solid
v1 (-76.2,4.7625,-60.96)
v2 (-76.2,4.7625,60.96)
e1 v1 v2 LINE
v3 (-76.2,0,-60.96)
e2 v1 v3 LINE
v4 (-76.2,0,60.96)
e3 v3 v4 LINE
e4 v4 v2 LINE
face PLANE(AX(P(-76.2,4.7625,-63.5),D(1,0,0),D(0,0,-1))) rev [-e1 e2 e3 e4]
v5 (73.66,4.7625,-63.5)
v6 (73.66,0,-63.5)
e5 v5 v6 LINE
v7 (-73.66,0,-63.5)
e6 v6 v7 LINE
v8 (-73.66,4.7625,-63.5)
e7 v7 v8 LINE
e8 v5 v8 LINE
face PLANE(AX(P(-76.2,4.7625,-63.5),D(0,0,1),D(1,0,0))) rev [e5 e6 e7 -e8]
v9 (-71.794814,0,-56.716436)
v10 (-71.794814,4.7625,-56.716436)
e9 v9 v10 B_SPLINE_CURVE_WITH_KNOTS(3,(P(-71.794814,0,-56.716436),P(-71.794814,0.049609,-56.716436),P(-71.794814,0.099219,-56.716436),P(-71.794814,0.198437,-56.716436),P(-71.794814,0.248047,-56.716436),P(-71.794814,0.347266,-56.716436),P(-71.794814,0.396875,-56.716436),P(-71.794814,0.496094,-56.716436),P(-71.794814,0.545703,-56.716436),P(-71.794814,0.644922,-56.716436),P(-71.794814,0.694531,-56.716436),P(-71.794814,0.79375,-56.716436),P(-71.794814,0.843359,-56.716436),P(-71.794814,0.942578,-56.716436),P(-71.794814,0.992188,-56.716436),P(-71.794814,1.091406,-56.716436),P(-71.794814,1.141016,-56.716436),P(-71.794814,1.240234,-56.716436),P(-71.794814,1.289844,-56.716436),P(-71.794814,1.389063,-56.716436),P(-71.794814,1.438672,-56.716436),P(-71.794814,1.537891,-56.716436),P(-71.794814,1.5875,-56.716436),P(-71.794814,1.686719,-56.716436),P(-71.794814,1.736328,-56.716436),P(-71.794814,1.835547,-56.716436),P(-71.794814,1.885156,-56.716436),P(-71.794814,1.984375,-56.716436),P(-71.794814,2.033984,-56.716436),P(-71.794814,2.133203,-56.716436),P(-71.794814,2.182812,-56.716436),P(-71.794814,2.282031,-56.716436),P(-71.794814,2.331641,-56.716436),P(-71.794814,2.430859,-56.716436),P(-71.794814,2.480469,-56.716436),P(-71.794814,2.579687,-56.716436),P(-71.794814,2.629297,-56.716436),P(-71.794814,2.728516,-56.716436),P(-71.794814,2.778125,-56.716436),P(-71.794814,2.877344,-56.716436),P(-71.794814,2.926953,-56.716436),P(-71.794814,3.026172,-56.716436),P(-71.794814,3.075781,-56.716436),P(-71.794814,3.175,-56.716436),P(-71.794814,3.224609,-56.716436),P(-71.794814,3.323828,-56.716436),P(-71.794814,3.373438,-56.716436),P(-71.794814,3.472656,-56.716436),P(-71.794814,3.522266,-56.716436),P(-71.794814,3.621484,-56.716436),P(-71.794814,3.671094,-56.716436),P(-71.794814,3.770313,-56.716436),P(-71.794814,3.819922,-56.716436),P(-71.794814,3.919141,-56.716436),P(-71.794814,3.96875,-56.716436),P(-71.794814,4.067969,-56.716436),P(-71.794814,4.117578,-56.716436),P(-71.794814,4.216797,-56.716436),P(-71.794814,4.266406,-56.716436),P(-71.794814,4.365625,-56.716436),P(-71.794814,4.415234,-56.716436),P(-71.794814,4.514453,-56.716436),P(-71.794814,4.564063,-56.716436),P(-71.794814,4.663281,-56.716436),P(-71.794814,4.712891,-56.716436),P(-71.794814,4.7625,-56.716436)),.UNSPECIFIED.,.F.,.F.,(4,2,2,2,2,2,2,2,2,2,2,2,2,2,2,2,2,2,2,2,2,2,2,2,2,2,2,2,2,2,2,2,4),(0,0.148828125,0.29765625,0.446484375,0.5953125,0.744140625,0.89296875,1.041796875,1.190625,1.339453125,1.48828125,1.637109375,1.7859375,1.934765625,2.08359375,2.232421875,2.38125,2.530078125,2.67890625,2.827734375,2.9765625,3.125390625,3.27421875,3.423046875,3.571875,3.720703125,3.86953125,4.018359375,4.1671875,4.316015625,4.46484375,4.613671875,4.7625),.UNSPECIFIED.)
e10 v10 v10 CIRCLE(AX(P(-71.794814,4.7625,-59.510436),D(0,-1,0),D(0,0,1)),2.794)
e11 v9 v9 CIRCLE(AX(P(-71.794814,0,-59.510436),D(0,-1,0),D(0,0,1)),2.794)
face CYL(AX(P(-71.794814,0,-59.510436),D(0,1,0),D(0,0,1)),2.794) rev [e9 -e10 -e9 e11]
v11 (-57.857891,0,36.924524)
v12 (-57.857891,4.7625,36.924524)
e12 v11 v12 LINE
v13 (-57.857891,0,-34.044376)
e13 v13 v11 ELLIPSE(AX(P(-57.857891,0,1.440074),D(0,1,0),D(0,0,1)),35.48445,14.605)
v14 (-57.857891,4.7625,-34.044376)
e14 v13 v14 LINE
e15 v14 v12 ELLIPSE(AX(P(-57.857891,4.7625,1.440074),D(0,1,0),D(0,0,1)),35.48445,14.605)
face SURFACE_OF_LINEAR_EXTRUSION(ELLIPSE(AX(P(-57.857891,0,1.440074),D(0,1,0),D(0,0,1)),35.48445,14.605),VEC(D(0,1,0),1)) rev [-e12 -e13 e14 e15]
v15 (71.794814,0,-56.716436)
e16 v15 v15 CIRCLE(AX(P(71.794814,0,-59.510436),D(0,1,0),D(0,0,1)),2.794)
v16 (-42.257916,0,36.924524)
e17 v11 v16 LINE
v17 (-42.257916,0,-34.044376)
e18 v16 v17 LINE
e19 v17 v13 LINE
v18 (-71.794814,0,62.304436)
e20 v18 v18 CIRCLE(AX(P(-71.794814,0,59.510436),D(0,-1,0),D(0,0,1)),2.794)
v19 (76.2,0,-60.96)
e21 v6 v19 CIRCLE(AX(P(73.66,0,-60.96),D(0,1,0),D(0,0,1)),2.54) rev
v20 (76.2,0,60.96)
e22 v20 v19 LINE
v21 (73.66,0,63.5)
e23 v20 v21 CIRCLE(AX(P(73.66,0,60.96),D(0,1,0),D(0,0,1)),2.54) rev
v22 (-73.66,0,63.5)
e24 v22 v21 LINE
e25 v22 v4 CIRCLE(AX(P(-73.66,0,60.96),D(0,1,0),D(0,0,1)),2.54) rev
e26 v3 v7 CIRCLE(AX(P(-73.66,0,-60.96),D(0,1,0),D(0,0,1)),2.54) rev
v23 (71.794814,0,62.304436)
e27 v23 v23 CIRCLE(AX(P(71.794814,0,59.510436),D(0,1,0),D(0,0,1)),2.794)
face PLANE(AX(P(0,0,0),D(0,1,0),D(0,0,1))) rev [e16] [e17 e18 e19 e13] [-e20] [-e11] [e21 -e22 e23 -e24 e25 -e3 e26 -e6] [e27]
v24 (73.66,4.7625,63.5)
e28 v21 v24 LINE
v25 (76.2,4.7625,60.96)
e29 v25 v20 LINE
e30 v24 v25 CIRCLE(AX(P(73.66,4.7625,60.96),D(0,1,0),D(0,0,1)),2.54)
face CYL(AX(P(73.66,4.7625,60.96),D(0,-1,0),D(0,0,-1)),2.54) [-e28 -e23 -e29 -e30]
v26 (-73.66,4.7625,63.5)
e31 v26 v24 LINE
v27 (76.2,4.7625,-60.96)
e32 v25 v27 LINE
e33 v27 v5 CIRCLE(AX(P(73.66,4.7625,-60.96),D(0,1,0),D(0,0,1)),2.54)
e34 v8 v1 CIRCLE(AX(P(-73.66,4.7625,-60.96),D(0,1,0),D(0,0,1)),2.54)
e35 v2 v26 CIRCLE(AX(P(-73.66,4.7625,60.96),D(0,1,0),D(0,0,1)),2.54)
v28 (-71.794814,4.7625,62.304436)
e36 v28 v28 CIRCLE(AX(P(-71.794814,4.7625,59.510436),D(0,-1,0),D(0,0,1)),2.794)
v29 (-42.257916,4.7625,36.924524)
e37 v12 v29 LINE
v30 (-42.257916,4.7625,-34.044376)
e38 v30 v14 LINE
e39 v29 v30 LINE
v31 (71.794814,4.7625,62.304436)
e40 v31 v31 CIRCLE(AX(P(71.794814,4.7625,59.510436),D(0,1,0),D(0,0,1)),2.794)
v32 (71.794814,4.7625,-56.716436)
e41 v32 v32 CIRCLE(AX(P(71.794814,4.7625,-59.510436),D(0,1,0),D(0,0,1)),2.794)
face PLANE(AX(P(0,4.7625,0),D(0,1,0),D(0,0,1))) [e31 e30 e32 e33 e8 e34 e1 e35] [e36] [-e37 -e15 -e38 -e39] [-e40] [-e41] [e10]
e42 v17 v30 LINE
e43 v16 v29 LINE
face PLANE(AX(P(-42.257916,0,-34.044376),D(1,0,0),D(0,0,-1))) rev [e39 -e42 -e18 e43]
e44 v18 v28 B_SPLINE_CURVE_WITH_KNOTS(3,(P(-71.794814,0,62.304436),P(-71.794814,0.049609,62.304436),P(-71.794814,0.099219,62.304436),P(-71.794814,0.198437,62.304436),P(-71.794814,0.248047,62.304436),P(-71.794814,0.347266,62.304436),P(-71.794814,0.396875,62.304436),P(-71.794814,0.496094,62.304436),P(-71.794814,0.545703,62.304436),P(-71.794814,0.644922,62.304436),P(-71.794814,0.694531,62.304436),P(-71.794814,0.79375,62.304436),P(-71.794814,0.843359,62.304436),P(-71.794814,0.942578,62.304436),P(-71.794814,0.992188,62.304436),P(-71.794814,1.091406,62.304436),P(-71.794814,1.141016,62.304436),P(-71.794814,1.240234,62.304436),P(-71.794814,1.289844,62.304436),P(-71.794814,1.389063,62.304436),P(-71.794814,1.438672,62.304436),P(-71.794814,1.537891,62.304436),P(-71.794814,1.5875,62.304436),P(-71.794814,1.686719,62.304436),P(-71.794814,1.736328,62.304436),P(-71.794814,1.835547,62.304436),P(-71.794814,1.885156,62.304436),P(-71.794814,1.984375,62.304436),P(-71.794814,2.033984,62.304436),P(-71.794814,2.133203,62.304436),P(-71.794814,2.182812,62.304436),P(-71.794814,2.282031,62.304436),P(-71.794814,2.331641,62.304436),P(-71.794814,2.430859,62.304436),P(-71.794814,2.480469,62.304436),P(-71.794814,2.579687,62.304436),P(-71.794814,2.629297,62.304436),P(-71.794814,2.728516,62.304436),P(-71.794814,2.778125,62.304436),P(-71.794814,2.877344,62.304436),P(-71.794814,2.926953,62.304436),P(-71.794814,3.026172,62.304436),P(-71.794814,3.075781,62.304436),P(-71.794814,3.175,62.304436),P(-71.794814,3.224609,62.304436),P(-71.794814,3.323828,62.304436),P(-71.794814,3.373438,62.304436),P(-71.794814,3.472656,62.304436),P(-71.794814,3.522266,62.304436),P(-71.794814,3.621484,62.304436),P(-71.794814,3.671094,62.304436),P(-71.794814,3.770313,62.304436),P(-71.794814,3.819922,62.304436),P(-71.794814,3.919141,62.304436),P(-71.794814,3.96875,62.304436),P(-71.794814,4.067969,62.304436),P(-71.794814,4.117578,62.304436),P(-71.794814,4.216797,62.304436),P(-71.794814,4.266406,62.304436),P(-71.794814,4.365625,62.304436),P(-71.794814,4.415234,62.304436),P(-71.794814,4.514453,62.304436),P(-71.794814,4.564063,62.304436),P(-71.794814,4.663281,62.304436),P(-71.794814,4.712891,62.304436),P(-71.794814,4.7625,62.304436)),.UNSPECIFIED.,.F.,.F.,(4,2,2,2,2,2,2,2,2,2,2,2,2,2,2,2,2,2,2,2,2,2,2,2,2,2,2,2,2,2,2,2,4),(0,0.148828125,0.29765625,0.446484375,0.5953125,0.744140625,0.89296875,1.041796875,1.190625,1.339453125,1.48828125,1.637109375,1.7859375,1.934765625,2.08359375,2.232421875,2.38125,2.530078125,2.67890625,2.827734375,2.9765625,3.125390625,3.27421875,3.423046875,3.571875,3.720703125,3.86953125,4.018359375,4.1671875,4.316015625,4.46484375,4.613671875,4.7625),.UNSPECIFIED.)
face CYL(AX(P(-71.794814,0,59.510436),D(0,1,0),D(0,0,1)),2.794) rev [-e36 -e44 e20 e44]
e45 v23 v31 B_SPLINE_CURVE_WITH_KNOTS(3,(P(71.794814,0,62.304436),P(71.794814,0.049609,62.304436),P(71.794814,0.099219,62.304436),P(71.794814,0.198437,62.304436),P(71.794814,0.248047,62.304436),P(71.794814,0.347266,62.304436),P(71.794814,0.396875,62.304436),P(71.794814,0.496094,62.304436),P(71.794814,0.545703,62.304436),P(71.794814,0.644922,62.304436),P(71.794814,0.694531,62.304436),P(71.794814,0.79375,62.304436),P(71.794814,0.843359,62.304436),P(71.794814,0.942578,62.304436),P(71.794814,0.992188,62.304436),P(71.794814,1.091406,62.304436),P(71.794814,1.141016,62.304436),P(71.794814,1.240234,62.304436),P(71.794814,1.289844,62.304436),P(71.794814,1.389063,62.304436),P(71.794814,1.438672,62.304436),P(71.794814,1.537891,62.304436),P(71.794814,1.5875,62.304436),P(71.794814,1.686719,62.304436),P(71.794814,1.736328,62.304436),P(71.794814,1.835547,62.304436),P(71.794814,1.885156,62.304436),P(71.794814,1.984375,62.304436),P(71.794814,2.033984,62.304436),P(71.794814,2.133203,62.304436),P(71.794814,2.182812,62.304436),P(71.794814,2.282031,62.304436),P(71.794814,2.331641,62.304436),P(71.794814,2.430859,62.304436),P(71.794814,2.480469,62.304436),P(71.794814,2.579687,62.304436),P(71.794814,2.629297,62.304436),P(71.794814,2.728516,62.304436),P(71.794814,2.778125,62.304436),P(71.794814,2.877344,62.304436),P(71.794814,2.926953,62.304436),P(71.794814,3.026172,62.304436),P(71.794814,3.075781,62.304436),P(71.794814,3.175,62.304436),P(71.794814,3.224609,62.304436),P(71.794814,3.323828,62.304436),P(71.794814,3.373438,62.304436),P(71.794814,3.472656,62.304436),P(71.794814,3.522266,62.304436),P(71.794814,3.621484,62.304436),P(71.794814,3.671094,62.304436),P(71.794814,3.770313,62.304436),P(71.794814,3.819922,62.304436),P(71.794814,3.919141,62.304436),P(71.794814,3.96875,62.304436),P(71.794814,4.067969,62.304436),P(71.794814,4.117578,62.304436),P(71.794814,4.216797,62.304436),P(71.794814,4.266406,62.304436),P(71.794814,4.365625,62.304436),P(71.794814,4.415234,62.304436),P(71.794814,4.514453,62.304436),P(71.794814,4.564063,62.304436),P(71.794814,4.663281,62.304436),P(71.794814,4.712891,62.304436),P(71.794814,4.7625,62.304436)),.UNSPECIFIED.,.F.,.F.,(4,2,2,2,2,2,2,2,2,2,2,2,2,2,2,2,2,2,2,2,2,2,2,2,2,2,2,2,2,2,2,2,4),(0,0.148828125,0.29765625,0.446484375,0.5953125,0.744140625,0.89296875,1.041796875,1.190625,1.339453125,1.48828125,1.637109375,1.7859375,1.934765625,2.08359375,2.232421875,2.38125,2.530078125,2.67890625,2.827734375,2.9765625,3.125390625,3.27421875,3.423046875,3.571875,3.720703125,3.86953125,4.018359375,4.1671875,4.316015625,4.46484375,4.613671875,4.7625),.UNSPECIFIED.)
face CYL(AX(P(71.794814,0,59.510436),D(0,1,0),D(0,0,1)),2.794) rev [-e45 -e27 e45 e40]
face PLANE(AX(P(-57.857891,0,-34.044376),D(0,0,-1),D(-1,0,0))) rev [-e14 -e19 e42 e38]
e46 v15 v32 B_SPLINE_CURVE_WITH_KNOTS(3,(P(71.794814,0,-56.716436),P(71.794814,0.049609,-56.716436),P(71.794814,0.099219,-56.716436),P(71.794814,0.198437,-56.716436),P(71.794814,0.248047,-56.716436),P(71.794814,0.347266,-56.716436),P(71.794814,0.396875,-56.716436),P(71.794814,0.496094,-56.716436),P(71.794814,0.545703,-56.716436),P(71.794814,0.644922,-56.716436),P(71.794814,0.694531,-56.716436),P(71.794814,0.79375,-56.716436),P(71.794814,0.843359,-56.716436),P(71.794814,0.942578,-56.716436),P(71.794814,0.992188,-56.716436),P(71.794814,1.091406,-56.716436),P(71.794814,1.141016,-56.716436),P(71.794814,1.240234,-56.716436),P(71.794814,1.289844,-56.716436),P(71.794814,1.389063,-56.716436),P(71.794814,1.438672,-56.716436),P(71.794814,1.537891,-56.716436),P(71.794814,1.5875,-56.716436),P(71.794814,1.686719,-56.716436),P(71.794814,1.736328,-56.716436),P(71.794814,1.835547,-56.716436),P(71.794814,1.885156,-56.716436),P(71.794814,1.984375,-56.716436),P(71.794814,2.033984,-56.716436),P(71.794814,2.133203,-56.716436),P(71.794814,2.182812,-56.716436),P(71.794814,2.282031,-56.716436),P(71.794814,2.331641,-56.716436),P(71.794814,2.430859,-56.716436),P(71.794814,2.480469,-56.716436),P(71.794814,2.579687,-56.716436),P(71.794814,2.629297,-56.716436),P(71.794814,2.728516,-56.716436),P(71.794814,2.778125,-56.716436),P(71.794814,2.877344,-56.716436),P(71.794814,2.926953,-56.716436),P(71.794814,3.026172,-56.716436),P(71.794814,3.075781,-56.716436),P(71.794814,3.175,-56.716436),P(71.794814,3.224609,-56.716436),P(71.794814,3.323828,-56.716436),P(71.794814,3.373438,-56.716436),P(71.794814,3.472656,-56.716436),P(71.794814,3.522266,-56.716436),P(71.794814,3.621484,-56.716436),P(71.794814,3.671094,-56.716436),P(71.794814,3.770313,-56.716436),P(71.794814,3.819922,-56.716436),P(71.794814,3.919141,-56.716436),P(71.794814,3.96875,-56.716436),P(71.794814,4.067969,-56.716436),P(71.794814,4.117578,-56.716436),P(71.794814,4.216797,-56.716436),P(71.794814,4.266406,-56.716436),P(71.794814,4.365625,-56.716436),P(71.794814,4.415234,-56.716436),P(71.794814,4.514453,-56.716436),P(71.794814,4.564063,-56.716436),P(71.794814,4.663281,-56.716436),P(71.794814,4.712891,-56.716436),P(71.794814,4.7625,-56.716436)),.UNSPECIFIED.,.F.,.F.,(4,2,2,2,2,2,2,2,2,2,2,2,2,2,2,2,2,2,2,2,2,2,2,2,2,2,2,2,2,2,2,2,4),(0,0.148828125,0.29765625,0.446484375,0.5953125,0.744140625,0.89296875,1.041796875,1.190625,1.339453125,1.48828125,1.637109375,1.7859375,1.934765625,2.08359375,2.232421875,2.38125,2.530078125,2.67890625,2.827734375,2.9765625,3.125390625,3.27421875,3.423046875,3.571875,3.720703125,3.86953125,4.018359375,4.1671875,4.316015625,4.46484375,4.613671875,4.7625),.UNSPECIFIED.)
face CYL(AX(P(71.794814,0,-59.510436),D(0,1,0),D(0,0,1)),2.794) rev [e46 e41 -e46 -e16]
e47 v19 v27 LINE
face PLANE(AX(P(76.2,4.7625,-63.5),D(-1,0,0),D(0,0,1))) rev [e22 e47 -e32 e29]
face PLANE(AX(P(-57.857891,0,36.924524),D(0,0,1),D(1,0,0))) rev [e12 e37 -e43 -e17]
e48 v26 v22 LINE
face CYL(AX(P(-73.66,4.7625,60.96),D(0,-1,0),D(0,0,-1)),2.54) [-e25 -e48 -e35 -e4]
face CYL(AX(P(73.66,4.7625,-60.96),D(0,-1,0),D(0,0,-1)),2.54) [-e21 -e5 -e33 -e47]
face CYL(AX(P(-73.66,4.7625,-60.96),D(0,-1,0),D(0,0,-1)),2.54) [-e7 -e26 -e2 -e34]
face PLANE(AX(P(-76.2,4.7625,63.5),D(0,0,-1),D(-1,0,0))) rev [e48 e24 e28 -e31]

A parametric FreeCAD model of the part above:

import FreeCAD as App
import Part
import Sketcher

V = App.Vector
Q = App.Units.Quantity


def edges_at(feature, points):
    """Names of the edges that pass closest to the given points."""
    edges = feature.Shape.Edges
    near = lambda p: min(range(len(edges)), key=lambda i: edges[i].distToShape(Part.Vertex(*p))[0])
    return sorted({f"Edge{near(p) + 1}" for p in points})


def add_polygon(sketch, points):
    """Adds a closed chain of lines whose ends are joined by coincident constraints."""
    first, n = sketch.GeometryCount, len(points)
    for a, b in zip(points, points[1:] + points[:1]):
        sketch.addGeometry(Part.LineSegment(App.Vector(*a, 0), App.Vector(*b, 0)), False)
    for i in range(n):
        sketch.addConstraint(Sketcher.Constraint("Coincident", first + i, 2, first + (i + 1) % n, 1))

doc = App.newDocument("Part")
params = doc.addObject("Spreadsheet::Sheet", "Params")
for row, (alias, value) in enumerate([
    ("sketch1_width", "6 in"),
    ("sketch1_height", "5 in"),
    ("pad1_length", "0.1875 in"),
    ("sketch2_diameter", "0.22 in"),
    ("fillet_radius", "0.1 in"),
], start=1):
    params.set(f"A{row}", alias)
    params.set(f"B{row}", "=" + value)
    params.setAlias(f"B{row}", alias)

body = doc.addObject("PartDesign::Body", "Body")

sketch1 = body.newObject("Sketcher::SketchObject", "Sketch")
sketch1.AttachmentSupport = (doc.getObject("XZ_Plane"), [""])
sketch1.MapMode = "FlatFace"
add_polygon(sketch1, [(-76, -64), (-76, 64), (76, 64), (76, -64)])
sketch1.addConstraint(Sketcher.Constraint("Vertical", 0))
sketch1.addConstraint(Sketcher.Constraint("Horizontal", 1))
sketch1.addConstraint(Sketcher.Constraint("Vertical", 2))
sketch1.addConstraint(Sketcher.Constraint("Horizontal", 3))
sketch1.addConstraint(Sketcher.Constraint("Symmetric", 0, 2, 2, 2, -1, 1))
sketch1.addConstraint(Sketcher.Constraint("DistanceX", 1, 1, 1, 2, Q("6 in")))
sketch1.addConstraint(Sketcher.Constraint("DistanceY", 0, 1, 0, 2, Q("5 in")))
sketch1.setExpression("Constraints[9]", "Params.sketch1_width")
sketch1.setExpression("Constraints[10]", "Params.sketch1_height")
pad1 = body.newObject("PartDesign::Pad", "Pad")
pad1.Profile = sketch1
pad1.setExpression("Length", "Params.pad1_length")
pad1.Reversed = True

sketch2 = body.newObject("Sketcher::SketchObject", "Sketch001")
sketch2.AttachmentSupport = (doc.getObject("XZ_Plane"), [""])
sketch2.MapMode = "FlatFace"
sketch2.AttachmentOffset = App.Placement(V(0, 0, -0.1875 * 25.4), App.Rotation())
sketch2.addGeometry(Part.Circle(V(71.8, 59.5, 0), V(0, 0, 1), 2.8), False)
sketch2.addGeometry(Part.Circle(V(71.8, -59.5, 0), V(0, 0, 1), 2.8), False)
sketch2.addConstraint(Sketcher.Constraint("Equal", 0, 1))
sketch2.addConstraint(Sketcher.Constraint("Symmetric", 0, 3, 1, 3, -1))
sketch2.addConstraint(Sketcher.Constraint("Diameter", 0, Q("0.22 in")))
sketch2.addConstraint(Sketcher.Constraint("DistanceY", 1, 3, 0, 3, 119.020872))
sketch2.addConstraint(Sketcher.Constraint("DistanceX", -1, 1, 0, 3, 71.794814))
sketch2.setExpression("Constraints[2]", "Params.sketch2_diameter")
pocket1 = body.newObject("PartDesign::Pocket", "Pocket")
pocket1.Profile = sketch2
pocket1.Type = "ThroughAll"
pocket1.Reversed = True
doc.recompute()

mirrored = body.newObject("PartDesign::Mirrored", "Mirrored")
mirrored.Originals = [pocket1]
mirrored.MirrorPlane = (doc.getObject("YZ_Plane"), [""])
body.Tip = mirrored
doc.recompute()

fillet = body.newObject("PartDesign::Fillet", "Fillet")
fillet.Base = (mirrored, edges_at(mirrored, [
    (76.2, 2.381, 63.5),
    (-76.2, 2.381, 63.5),
    (-76.2, 2.381, -63.5),
    (76.2, 2.381, -63.5),
]))
fillet.setExpression("Radius", "Params.fillet_radius")

sketch3 = body.newObject("Sketcher::SketchObject", "Sketch002")
sketch3.AttachmentSupport = (doc.getObject("XZ_Plane"), [""])
sketch3.MapMode = "FlatFace"
sketch3.AttachmentOffset = App.Placement(V(0, 0, -0.1875 * 25.4), App.Rotation())
add_polygon(sketch3, [(-58, -34), (-58, 37), (-42, 37), (-42, -34)])
sketch3.addConstraint(Sketcher.Constraint("Vertical", 0))
sketch3.addConstraint(Sketcher.Constraint("Horizontal", 1))
sketch3.addConstraint(Sketcher.Constraint("Vertical", 2))
sketch3.addConstraint(Sketcher.Constraint("Horizontal", 3))
sketch3.addConstraint(Sketcher.Constraint("DistanceY", 0, 1, 0, 2, 70.9689))
sketch3.addConstraint(Sketcher.Constraint("DistanceX", 1, 1, 1, 2, 15.599975))
sketch3.addConstraint(Sketcher.Constraint("DistanceX", 0, 2, -1, 1, 57.857891))
sketch3.addConstraint(Sketcher.Constraint("DistanceY", -1, 1, 0, 2, 36.924524))
pocket2 = body.newObject("PartDesign::Pocket", "Pocket001")
pocket2.Profile = sketch3
pocket2.Type = "ThroughAll"
pocket2.Reversed = True

sketch4 = body.newObject("Sketcher::SketchObject", "Sketch003")
sketch4.AttachmentSupport = (doc.getObject("XZ_Plane"), [""])
sketch4.MapMode = "FlatFace"
sketch4.AttachmentOffset = App.Placement(V(0, 0, -0.1875 * 25.4), App.Rotation())
sketch4.addGeometry(Part.Ellipse(V(-57.857891, 36.924524, 0), V(-72.462891, 1.440074, 0), V(-57.857891, 1.440074, 0)), False)
sketch4.addConstraint(Sketcher.Constraint("Block", 0))
pocket3 = body.newObject("PartDesign::Pocket", "Pocket002")
pocket3.Profile = sketch4
pocket3.Type = "ThroughAll"
pocket3.Reversed = True

doc.recompute()
